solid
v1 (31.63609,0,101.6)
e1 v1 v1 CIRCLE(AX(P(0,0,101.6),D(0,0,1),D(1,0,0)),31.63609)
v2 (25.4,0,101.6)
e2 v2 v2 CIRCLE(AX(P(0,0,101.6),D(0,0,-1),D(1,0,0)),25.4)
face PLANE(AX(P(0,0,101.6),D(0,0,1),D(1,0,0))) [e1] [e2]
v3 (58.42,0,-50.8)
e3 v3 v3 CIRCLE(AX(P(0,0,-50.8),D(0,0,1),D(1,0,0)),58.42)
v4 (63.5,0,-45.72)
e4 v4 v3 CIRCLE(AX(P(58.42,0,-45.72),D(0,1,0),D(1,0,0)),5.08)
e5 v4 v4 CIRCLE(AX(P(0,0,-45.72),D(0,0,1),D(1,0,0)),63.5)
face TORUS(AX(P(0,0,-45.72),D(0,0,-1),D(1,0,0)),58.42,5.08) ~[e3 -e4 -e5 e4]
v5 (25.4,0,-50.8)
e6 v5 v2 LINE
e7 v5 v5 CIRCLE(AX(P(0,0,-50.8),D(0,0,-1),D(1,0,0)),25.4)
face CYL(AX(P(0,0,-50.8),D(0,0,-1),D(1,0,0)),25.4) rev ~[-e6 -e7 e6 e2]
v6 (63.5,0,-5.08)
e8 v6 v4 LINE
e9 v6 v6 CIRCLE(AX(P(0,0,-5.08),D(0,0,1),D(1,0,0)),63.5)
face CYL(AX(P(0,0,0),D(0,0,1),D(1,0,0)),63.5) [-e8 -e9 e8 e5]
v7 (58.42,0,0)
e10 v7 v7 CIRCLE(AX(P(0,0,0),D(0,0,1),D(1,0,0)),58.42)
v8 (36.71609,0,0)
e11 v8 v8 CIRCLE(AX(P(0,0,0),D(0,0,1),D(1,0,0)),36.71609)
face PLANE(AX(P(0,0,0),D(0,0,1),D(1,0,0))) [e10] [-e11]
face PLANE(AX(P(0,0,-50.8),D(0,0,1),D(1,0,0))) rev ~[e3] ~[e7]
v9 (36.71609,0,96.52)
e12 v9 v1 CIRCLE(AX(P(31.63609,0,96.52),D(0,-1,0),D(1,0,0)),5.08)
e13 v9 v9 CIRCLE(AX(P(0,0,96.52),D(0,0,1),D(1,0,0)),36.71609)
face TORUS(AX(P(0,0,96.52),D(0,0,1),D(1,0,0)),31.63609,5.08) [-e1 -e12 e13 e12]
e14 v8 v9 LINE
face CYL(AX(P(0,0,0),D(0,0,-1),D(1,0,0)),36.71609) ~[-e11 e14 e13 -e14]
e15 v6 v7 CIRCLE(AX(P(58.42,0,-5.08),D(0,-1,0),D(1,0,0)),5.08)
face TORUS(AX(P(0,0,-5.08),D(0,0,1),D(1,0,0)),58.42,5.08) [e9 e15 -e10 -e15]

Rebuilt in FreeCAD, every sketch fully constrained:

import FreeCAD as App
import Part
import Sketcher

V = App.Vector
Q = App.Units.Quantity


def edges_at(feature, points):
    """Names of the edges that pass closest to the given points."""
    edges = feature.Shape.Edges
    near = lambda p: min(range(len(edges)), key=lambda i: edges[i].distToShape(Part.Vertex(*p))[0])
    return sorted({f"Edge{near(p) + 1}" for p in points})

doc = App.newDocument("Part")
params = doc.addObject("Spreadsheet::Sheet", "Params")
for row, (alias, value) in enumerate([
    ("pad1_length", "4 in"),
    ("sketch2_diameter", "5 in"),
    ("pad2_length", "2 in"),
    ("fillet_radius", "0.2 in"),
    ("sketch3_diameter", "2 in"),
    ("pocket1_length", "6 in"),
], start=1):
    params.set(f"A{row}", alias)
    params.set(f"B{row}", "=" + value)
    params.setAlias(f"B{row}", alias)

body = doc.addObject("PartDesign::Body", "Body")

sketch1 = doc.addObject("Sketcher::SketchObject", "Sketch")
body.addObject(sketch1)
sketch1.AttachmentSupport = (doc.XY_Plane, [""])
sketch1.MapMode = "FlatFace"
sketch1.addGeometry(Part.Circle(V(0, 0, 0), V(0, 0, 1), 36.71609), False)
sketch1.addConstraint([
    Sketcher.Constraint("Coincident", 0, 3, -1, 1),
    Sketcher.Constraint("Diameter", 0, Q("73.43218 mm")),
])
pad1 = doc.addObject("PartDesign::Pad", "Pad")
body.addObject(pad1)
pad1.Profile = sketch1
pad1.setExpression("Length", "Params.pad1_length")

sketch2 = doc.addObject("Sketcher::SketchObject", "Sketch001")
body.addObject(sketch2)
sketch2.AttachmentSupport = (doc.XY_Plane, [""])
sketch2.MapMode = "FlatFace"
sketch2.addGeometry(Part.Circle(V(0, 0, 0), V(0, 0, 1), 63.5), False)
sketch2.addConstraint([
    Sketcher.Constraint("Coincident", 0, 3, -1, 1),
    Sketcher.Constraint("Diameter", 0, Q("5 in")),
])
sketch2.setExpression("Constraints[1]", "Params.sketch2_diameter")
pad2 = doc.addObject("PartDesign::Pad", "Pad001")
body.addObject(pad2)
pad2.Profile = sketch2
pad2.setExpression("Length", "Params.pad2_length")
pad2.Reversed = True
doc.recompute()

fillet = doc.addObject("PartDesign::Fillet", "Fillet")
body.addObject(fillet)
fillet.Base = (pad2, edges_at(pad2, [(-63.5, 0, 0), (-63.5, 0, -50.8), (-36.716, 0, 101.6)]))
fillet.setExpression("Radius", "Params.fillet_radius")

sketch3 = doc.addObject("Sketcher::SketchObject", "Sketch002")
body.addObject(sketch3)
sketch3.AttachmentSupport = (doc.XY_Plane, [""])
sketch3.MapMode = "FlatFace"
sketch3.AttachmentOffset = App.Placement(V(0, 0, -2 * 25.4), App.Rotation())
sketch3.addGeometry(Part.Circle(V(0, 0, 0), V(0, 0, 1), 25.4), False)
sketch3.addConstraint([
    Sketcher.Constraint("Coincident", 0, 3, -1, 1),
    Sketcher.Constraint("Diameter", 0, Q("2 in")),
])
sketch3.setExpression("Constraints[1]", "Params.sketch3_diameter")
pocket1 = doc.addObject("PartDesign::Pocket", "Pocket")
body.addObject(pocket1)
pocket1.Profile = sketch3
pocket1.setExpression("Length", "Params.pocket1_length")
pocket1.Reversed = True

doc.recompute()
